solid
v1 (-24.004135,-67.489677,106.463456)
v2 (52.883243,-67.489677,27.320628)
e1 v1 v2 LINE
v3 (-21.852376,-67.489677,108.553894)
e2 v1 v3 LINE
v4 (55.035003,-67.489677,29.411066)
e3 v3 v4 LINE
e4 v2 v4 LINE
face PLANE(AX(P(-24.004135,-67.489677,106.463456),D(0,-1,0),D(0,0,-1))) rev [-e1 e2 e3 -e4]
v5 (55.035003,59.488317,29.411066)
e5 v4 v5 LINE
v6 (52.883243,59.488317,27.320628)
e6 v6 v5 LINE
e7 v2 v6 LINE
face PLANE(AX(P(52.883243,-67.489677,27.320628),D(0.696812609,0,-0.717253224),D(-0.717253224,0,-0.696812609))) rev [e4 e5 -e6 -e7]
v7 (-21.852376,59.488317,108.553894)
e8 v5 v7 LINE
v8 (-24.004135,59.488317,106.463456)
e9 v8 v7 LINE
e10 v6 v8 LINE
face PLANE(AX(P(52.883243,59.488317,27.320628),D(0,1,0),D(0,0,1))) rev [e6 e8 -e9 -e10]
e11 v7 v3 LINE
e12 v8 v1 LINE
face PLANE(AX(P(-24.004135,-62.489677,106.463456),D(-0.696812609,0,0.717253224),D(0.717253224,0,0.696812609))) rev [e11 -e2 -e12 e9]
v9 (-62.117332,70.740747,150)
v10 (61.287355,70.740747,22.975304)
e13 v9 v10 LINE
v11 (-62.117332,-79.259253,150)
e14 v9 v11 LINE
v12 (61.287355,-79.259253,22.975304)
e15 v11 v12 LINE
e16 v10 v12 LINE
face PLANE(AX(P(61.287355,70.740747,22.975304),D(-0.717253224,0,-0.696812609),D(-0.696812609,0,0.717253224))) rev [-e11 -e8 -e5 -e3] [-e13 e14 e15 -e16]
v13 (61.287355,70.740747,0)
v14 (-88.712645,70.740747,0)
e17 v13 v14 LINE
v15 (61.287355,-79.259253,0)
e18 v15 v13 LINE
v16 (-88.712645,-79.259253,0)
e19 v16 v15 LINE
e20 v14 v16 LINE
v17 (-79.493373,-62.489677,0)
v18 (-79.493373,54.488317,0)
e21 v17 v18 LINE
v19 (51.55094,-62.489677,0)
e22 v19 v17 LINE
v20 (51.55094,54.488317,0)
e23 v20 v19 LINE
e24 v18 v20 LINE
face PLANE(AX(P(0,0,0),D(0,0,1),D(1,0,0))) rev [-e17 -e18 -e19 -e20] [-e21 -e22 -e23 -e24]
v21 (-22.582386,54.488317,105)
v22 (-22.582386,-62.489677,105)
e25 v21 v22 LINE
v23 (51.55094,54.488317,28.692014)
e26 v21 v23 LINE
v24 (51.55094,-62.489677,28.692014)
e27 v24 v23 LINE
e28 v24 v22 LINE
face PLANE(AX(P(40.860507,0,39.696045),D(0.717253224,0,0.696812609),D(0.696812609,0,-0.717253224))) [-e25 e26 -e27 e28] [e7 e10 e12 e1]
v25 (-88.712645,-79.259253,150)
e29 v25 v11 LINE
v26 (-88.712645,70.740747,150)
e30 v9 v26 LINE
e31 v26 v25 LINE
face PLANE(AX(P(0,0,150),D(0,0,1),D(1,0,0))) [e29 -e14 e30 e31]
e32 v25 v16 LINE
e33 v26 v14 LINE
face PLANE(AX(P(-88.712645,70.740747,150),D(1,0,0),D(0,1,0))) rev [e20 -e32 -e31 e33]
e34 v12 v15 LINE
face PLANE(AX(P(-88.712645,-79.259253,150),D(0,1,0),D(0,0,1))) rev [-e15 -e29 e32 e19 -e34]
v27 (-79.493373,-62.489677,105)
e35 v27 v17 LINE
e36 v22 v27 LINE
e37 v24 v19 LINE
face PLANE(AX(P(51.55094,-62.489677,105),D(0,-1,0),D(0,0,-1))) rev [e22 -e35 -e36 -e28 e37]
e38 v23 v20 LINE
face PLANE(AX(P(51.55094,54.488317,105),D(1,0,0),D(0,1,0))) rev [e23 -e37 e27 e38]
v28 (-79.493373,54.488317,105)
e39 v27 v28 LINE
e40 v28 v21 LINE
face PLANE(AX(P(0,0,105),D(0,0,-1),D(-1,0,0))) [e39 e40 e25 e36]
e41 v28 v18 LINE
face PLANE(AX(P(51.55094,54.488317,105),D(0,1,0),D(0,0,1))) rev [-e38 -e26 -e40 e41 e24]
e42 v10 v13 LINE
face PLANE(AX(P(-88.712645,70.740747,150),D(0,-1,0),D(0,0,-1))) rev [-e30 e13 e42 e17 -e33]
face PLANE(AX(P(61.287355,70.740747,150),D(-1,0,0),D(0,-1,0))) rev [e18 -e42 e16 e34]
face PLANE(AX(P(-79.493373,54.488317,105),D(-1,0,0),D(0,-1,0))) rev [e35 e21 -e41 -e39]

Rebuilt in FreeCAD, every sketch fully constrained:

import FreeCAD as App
import Part
import Sketcher

V = App.Vector


def add_polygon(sketch, points):
    """Adds a closed chain of lines whose ends are joined by coincident constraints."""
    first, n = sketch.GeometryCount, len(points)
    for a, b in zip(points, points[1:] + points[:1]):
        sketch.addGeometry(Part.LineSegment(App.Vector(*a, 0), App.Vector(*b, 0)), False)
    for i in range(n):
        sketch.addConstraint(Sketcher.Constraint("Coincident", first + i, 2, first + (i + 1) % n, 1))

doc = App.newDocument("Part")
body = doc.addObject("PartDesign::Body", "Body")

# Sketch on XY plane
sketch1 = body.newObject("Sketcher::SketchObject", "Sketch")
sketch1.AttachmentSupport = (doc.getObject("XY_Plane"), [""])
sketch1.MapMode = "FlatFace"
add_polygon(sketch1, [(-89, 71), (-89, -79), (61, -79), (61, 71)])  # lines 0-3
sketch1.addConstraint(Sketcher.Constraint("Vertical", 0))
sketch1.addConstraint(Sketcher.Constraint("Horizontal", 1))
sketch1.addConstraint(Sketcher.Constraint("Vertical", 2))
sketch1.addConstraint(Sketcher.Constraint("Horizontal", 3))
sketch1.addConstraint(Sketcher.Constraint("Equal", 3, 0))
sketch1.addConstraint(Sketcher.Constraint("DistanceX", 1, 1, 1, 2, 150.0))
sketch1.addConstraint(Sketcher.Constraint("DistanceX", 0, 2, -1, 1, 88.712645))
sketch1.addConstraint(Sketcher.Constraint("DistanceY", 0, 2, -1, 1, 79.259253))
pad1 = body.newObject("PartDesign::Pad", "Pad")
pad1.Profile = sketch1
pad1.Length = 150

# Sketch on XZ plane
sketch2 = body.newObject("Sketcher::SketchObject", "Sketch001")
sketch2.AttachmentSupport = (doc.getObject("XZ_Plane"), [""])
sketch2.MapMode = "FlatFace"
sketch2.AttachmentOffset = App.Placement(V(0, 0, 79.259253), App.Rotation())
add_polygon(sketch2, [(-62, 150), (61, 23), (61, 150)])  # lines 0-2
sketch2.addConstraint(Sketcher.Constraint("Vertical", 1))
sketch2.addConstraint(Sketcher.Constraint("Horizontal", 2))
sketch2.addConstraint(Sketcher.Constraint("DistanceY", -1, 1, 1, 2, 150.0))
sketch2.addConstraint(Sketcher.Constraint("DistanceX", 2, 2, 2, 1, 123.404687))
sketch2.addConstraint(Sketcher.Constraint("DistanceY", 1, 1, 1, 2, 127.024696))
sketch2.addConstraint(Sketcher.Constraint("DistanceX", 2, 2, -1, 1, 62.117332))
pocket1 = body.newObject("PartDesign::Pocket", "Pocket")
pocket1.Profile = sketch2
pocket1.Length = 150

# Sketch on XY plane
sketch3 = body.newObject("Sketcher::SketchObject", "Sketch002")
sketch3.AttachmentSupport = (doc.getObject("XY_Plane"), [""])
sketch3.MapMode = "FlatFace"
add_polygon(sketch3, [(52, 54), (52, -62), (-79, -62), (-79, 54)])  # lines 0-3
sketch3.addConstraint(Sketcher.Constraint("Vertical", 0))
sketch3.addConstraint(Sketcher.Constraint("Horizontal", 1))
sketch3.addConstraint(Sketcher.Constraint("Vertical", 2))
sketch3.addConstraint(Sketcher.Constraint("Horizontal", 3))
sketch3.addConstraint(Sketcher.Constraint("DistanceX", 1, 2, 1, 1, 131.044313))
sketch3.addConstraint(Sketcher.Constraint("DistanceY", 0, 2, 0, 1, 116.977994))
sketch3.addConstraint(Sketcher.Constraint("DistanceX", -1, 1, 0, 2, 51.55094))
sketch3.addConstraint(Sketcher.Constraint("DistanceY", 0, 2, -1, 1, 62.489677))
pocket2 = body.newObject("PartDesign::Pocket", "Pocket001")
pocket2.Profile = sketch3
pocket2.Length = 105
pocket2.Reversed = True

# Sketch on an angled plane
sketch4 = body.newObject("Sketcher::SketchObject", "Sketch003")
sketch4.Placement = App.Placement(V(43.012266, 0, 41.786483), App.Rotation(V(0.696812609, 0, -0.717253224), V(0, 0.999999999, 0), V(0.717253224, 0, 0.696812609), "ZXY"))
add_polygon(sketch4, [(-93.1, 54.5), (-93.1, -62.5), (-88.1, -62.5), (-88.1, 54.5)])  # lines 0-3
sketch4.addConstraint(Sketcher.Constraint("Vertical", 0))
sketch4.addConstraint(Sketcher.Constraint("Horizontal", 1))
sketch4.addConstraint(Sketcher.Constraint("Vertical", 2))
sketch4.addConstraint(Sketcher.Constraint("Horizontal", 3))
sketch4.addConstraint(Sketcher.Constraint("DistanceX", 1, 1, 1, 2, 4.954866))
sketch4.addConstraint(Sketcher.Constraint("DistanceY", 0, 2, 0, 1, 116.977994))
sketch4.addConstraint(Sketcher.Constraint("DistanceX", 0, 2, -1, 1, 93.087641))
sketch4.addConstraint(Sketcher.Constraint("DistanceY", 0, 2, -1, 1, 62.489677))
pocket3 = body.newObject("PartDesign::Pocket", "Pocket002")
pocket3.Profile = sketch4
pocket3.Length = 3

# Sketch on an angled plane
sketch5 = body.newObject("Sketcher::SketchObject", "Sketch004")
sketch5.Placement = App.Placement(V(43.012266, 0, 41.786483), App.Rotation(V(0.696812609, 0, -0.717253224), V(0, 0.999999999, 0), V(0.717253224, 0, 0.696812609), "ZXY"))
add_polygon(sketch5, [(-93.1, -62.5), (-93.1, -67.5), (12.3, -67.5), (12.3, -62.5)])  # lines 0-3
sketch5.addConstraint(Sketcher.Constraint("Vertical", 0))
sketch5.addConstraint(Sketcher.Constraint("Horizontal", 1))
sketch5.addConstraint(Sketcher.Constraint("Vertical", 2))
sketch5.addConstraint(Sketcher.Constraint("Horizontal", 3))
sketch5.addConstraint(Sketcher.Constraint("DistanceY", 0, 2, 0, 1, 5.0))
sketch5.addConstraint(Sketcher.Constraint("DistanceX", 1, 1, 1, 2, 105.341544))
sketch5.addConstraint(Sketcher.Constraint("DistanceX", 0, 2, -1, 1, 93.087641))
sketch5.addConstraint(Sketcher.Constraint("DistanceY", 0, 2, -1, 1, 67.489677))
pocket4 = body.newObject("PartDesign::Pocket", "Pocket003")
pocket4.Profile = sketch5
pocket4.Length = 3

# Sketch on an angled plane
sketch6 = body.newObject("Sketcher::SketchObject", "Sketch005")
sketch6.Placement = App.Placement(V(43.012266, 0, 41.786483), App.Rotation(V(0.696812609, 0, -0.717253224), V(0, 0.999999999, 0), V(0.717253224, 0, 0.696812609), "ZXY"))
add_polygon(sketch6, [(12.3, 54.5), (12.3, -67.5), (17.3, -67.5), (17.3, 54.5)])  # lines 0-3
sketch6.addConstraint(Sketcher.Constraint("Vertical", 0))
sketch6.addConstraint(Sketcher.Constraint("Horizontal", 1))
sketch6.addConstraint(Sketcher.Constraint("Vertical", 2))
sketch6.addConstraint(Sketcher.Constraint("Horizontal", 3))
sketch6.addConstraint(Sketcher.Constraint("DistanceX", 1, 1, 1, 2, 5.0))
sketch6.addConstraint(Sketcher.Constraint("DistanceY", 0, 2, 0, 1, 121.977994))
sketch6.addConstraint(Sketcher.Constraint("DistanceX", -1, 1, 0, 2, 12.253902))
sketch6.addConstraint(Sketcher.Constraint("DistanceY", 0, 2, -1, 1, 67.489677))
pocket5 = body.newObject("PartDesign::Pocket", "Pocket004")
pocket5.Profile = sketch6
pocket5.Length = 3

# Sketch on an angled plane
sketch7 = body.newObject("Sketcher::SketchObject", "Sketch006")
sketch7.Placement = App.Placement(V(43.012266, 0, 41.786483), App.Rotation(V(0.696812609, 0, -0.717253224), V(0, 0.999999999, 0), V(0.717253224, 0, 0.696812609), "ZXY"))
add_polygon(sketch7, [(-93.1, 59.5), (-93.1, 54.5), (17.3, 54.5), (17.3, 59.5)])  # lines 0-3
sketch7.addConstraint(Sketcher.Constraint("Vertical", 0))
sketch7.addConstraint(Sketcher.Constraint("Horizontal", 1))
sketch7.addConstraint(Sketcher.Constraint("Vertical", 2))
sketch7.addConstraint(Sketcher.Constraint("Horizontal", 3))
sketch7.addConstraint(Sketcher.Constraint("DistanceY", 0, 2, 0, 1, 5.0))
sketch7.addConstraint(Sketcher.Constraint("DistanceX", 1, 1, 1, 2, 110.341544))
sketch7.addConstraint(Sketcher.Constraint("DistanceX", 0, 2, -1, 1, 93.087641))
sketch7.addConstraint(Sketcher.Constraint("DistanceY", -1, 1, 0, 2, 54.488316))
pocket6 = body.newObject("PartDesign::Pocket", "Pocket005")
pocket6.Profile = sketch7
pocket6.Length = 3

doc.recompute()
